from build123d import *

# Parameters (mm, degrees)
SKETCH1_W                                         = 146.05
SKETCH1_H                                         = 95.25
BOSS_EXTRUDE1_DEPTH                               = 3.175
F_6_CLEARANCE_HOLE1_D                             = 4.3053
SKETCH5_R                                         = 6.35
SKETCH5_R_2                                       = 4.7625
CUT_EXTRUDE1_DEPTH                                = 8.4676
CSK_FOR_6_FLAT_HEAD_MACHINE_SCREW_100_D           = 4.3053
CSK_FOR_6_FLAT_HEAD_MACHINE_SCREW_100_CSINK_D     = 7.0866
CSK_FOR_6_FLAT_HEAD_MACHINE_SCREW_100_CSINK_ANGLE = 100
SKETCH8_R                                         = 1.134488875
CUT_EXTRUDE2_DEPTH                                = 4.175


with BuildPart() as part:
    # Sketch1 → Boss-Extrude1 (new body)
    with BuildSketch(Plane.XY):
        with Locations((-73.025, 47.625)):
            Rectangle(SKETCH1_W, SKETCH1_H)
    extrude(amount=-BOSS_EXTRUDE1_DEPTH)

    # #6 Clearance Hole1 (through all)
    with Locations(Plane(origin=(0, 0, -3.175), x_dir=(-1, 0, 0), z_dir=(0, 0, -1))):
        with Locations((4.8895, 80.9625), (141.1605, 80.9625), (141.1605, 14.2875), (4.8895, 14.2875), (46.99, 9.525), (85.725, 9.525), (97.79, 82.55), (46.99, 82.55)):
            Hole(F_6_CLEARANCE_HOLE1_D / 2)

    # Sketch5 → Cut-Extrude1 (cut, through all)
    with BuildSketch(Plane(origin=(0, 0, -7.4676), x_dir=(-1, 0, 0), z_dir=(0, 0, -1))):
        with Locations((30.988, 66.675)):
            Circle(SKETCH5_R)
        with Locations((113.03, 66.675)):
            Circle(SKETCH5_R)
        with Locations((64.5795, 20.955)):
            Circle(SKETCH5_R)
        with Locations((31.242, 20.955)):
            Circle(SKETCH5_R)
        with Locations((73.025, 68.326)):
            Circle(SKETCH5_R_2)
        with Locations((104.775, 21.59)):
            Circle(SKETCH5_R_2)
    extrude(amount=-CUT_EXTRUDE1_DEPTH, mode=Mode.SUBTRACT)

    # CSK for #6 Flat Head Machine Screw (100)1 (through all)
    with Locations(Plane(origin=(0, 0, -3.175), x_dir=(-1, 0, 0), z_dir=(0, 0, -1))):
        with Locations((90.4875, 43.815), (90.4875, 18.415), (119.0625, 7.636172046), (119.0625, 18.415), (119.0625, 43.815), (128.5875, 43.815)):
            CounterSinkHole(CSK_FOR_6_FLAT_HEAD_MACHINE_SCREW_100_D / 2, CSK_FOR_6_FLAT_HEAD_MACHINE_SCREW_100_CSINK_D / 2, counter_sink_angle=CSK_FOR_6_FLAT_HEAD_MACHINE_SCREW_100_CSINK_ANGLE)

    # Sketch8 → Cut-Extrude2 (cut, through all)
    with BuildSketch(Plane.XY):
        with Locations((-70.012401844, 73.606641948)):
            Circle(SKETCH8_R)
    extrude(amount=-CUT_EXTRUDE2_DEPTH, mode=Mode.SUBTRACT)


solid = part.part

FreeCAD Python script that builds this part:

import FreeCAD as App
import Part
import Sketcher
from FreeCAD import Vector
Q = App.Units.Quantity


def add_polygon(sketch, points):
    """Adds a closed chain of lines whose ends are joined by coincident constraints."""
    first, n = sketch.GeometryCount, len(points)
    for a, b in zip(points, points[1:] + points[:1]):
        sketch.addGeometry(Part.LineSegment(App.Vector(*a, 0), App.Vector(*b, 0)), False)
    for i in range(n):
        sketch.addConstraint(Sketcher.Constraint("Coincident", first + i, 2, first + (i + 1) % n, 1))

doc = App.newDocument("Part")
body = doc.addObject("PartDesign::Body", "Body")

sketch1 = body.newObject("Sketcher::SketchObject", "Sketch")
sketch1.AttachmentSupport = (doc.getObject("XY_Plane"), [""])
sketch1.MapMode = "FlatFace"
add_polygon(sketch1, [(-146, 95), (-146, 0), (0, 0), (0, 95)])
sketch1.addConstraint([
    Sketcher.Constraint("Vertical", 0),
    Sketcher.Constraint("Horizontal", 1),
    Sketcher.Constraint("Vertical", 2),
    Sketcher.Constraint("Horizontal", 3),
    Sketcher.Constraint("Coincident", 1, 2, -1, 1),
    Sketcher.Constraint("DistanceX", 1, 1, 1, 2, Q("5.75 in")),
    Sketcher.Constraint("DistanceY", 0, 2, 0, 1, Q("3.75 in")),
])
pad1 = body.newObject("PartDesign::Pad", "Pad")
pad1.Profile = sketch1
pad1.Length = Q("0.125 in")
pad1.Reversed = True

sketch2 = body.newObject("Sketcher::SketchObject", "Sketch001")
sketch2.AttachmentSupport = (doc.getObject("XY_Plane"), [""])
sketch2.MapMode = "FlatFace"
sketch2.AttachmentOffset = App.Placement(Vector(0, 0, -0.125 * 25.4), App.Rotation())
sketch2.addGeometry([
    Part.Circle(Vector(-4.9, 81, 0), Vector(0, 0, 1), 2.2),
    Part.Circle(Vector(-141.2, 81, 0), Vector(0, 0, 1), 2.2),
    Part.Circle(Vector(-141.2, 14.3, 0), Vector(0, 0, 1), 2.2),
    Part.Circle(Vector(-4.9, 14.3, 0), Vector(0, 0, 1), 2.2),
    Part.Circle(Vector(-47, 9.5, 0), Vector(0, 0, 1), 2.2),
    Part.Circle(Vector(-85.7, 9.5, 0), Vector(0, 0, 1), 2.2),
    Part.Circle(Vector(-97.8, 82.5, 0), Vector(0, 0, 1), 2.2),
    Part.Circle(Vector(-47, 82.5, 0), Vector(0, 0, 1), 2.2),
], False)
sketch2.addConstraint([
    Sketcher.Constraint("Equal", 0, 1),
    Sketcher.Constraint("Equal", 1, 2),
    Sketcher.Constraint("Equal", 2, 3),
    Sketcher.Constraint("Equal", 3, 4),
    Sketcher.Constraint("Equal", 4, 5),
    Sketcher.Constraint("Equal", 5, 6),
    Sketcher.Constraint("Equal", 6, 7),
    Sketcher.Constraint("Horizontal", 0, 3, 1, 3),
    Sketcher.Constraint("Horizontal", 2, 3, 3, 3),
    Sketcher.Constraint("Horizontal", 4, 3, 5, 3),
    Sketcher.Constraint("Horizontal", 6, 3, 7, 3),
    Sketcher.Constraint("Vertical", 1, 3, 2, 3),
    Sketcher.Constraint("Vertical", 0, 3, 3, 3),
    Sketcher.Constraint("Vertical", 4, 3, 7, 3),
    Sketcher.Constraint("DistanceX", 6, 3, 4, 3, Q("2 in")),
    Sketcher.Constraint("Diameter", 0, Q("0.1695 in")),
    Sketcher.Constraint("DistanceX", 4, 3, -1, 1, Q("1.85 in")),
    Sketcher.Constraint("DistanceY", -1, 1, 6, 3, Q("3.25 in")),
    Sketcher.Constraint("DistanceY", -1, 1, 0, 3, Q("3.1875 in")),
    Sketcher.Constraint("DistanceY", -1, 1, 2, 3, Q("0.5625 in")),
    Sketcher.Constraint("DistanceY", -1, 1, 4, 3, Q("0.375 in")),
    Sketcher.Constraint("DistanceX", 5, 3, -1, 1, Q("3.375 in")),
    Sketcher.Constraint("DistanceX", 1, 3, 0, 3, Q("5.365 in")),
    Sketcher.Constraint("DistanceX", 0, 3, -1, 1, Q("0.1925 in")),
])
doc.recompute()
hole = body.newObject("PartDesign::Hole", "Hole")
hole.Profile = sketch2
hole.ThreadType = "None"
hole.Diameter = Q("0.1695 in")
hole.DepthType = "ThroughAll"
hole.Reversed = True

sketch3 = body.newObject("Sketcher::SketchObject", "Sketch002")
sketch3.AttachmentSupport = (doc.getObject("XY_Plane"), [""])
sketch3.MapMode = "FlatFace"
sketch3.AttachmentOffset = App.Placement(Vector(0, 0, -0.294 * 25.4), App.Rotation())
sketch3.addGeometry([
    Part.Circle(Vector(-31, 66.7, 0), Vector(0, 0, 1), 6.3),
    Part.Circle(Vector(-113, 66.7, 0), Vector(0, 0, 1), 6.3),
    Part.Circle(Vector(-64.6, 21, 0), Vector(0, 0, 1), 6.3),
    Part.Circle(Vector(-31.2, 21, 0), Vector(0, 0, 1), 6.3),
    Part.Circle(Vector(-73, 68.3, 0), Vector(0, 0, 1), 4.8),
    Part.Circle(Vector(-104.8, 21.6, 0), Vector(0, 0, 1), 4.8),
], False)
sketch3.addConstraint([
    Sketcher.Constraint("Equal", 0, 1),
    Sketcher.Constraint("Equal", 1, 2),
    Sketcher.Constraint("Equal", 2, 3),
    Sketcher.Constraint("Equal", 4, 5),
    Sketcher.Constraint("Horizontal", 0, 3, 1, 3),
    Sketcher.Constraint("Horizontal", 2, 3, 3, 3),
    Sketcher.Constraint("Diameter", 0, Q("0.5 in")),
    Sketcher.Constraint("Diameter", 4, Q("0.375 in")),
    Sketcher.Constraint("DistanceY", 2, 3, 0, 3, Q("1.8 in")),
    Sketcher.Constraint("DistanceX", 0, 3, -1, 1, Q("1.22 in")),
    Sketcher.Constraint("DistanceX", 1, 3, -1, 1, Q("4.45 in")),
    Sketcher.Constraint("DistanceX", 3, 3, -1, 1, Q("1.23 in")),
    Sketcher.Constraint("DistanceY", -1, 1, 4, 3, Q("2.69 in")),
    Sketcher.Constraint("DistanceY", -1, 1, 5, 3, Q("0.85 in")),
    Sketcher.Constraint("DistanceX", 5, 3, 4, 3, Q("1.25 in")),
    Sketcher.Constraint("DistanceY", -1, 1, 0, 3, Q("2.625 in")),
    Sketcher.Constraint("DistanceX", 4, 3, -1, 1, Q("2.875 in")),
    Sketcher.Constraint("DistanceX", 2, 3, 3, 3, Q("1.3125 in")),
])
pocket1 = body.newObject("PartDesign::Pocket", "Pocket")
pocket1.Profile = sketch3
pocket1.Type = "ThroughAll"
pocket1.Reversed = True

sketch4 = body.newObject("Sketcher::SketchObject", "Sketch003")
sketch4.AttachmentSupport = (doc.getObject("XY_Plane"), [""])
sketch4.MapMode = "FlatFace"
sketch4.AttachmentOffset = App.Placement(Vector(0, 0, -0.125 * 25.4), App.Rotation())
sketch4.addGeometry([
    Part.Circle(Vector(-90.5, 43.8, 0), Vector(0, 0, 1), 2.2),
    Part.Circle(Vector(-90.5, 18.4, 0), Vector(0, 0, 1), 2.2),
    Part.Circle(Vector(-119.1, 7.6, 0), Vector(0, 0, 1), 2.2),
    Part.Circle(Vector(-119.1, 18.4, 0), Vector(0, 0, 1), 2.2),
    Part.Circle(Vector(-119.1, 43.8, 0), Vector(0, 0, 1), 2.2),
    Part.Circle(Vector(-128.6, 43.8, 0), Vector(0, 0, 1), 2.2),
], False)
sketch4.addConstraint([
    Sketcher.Constraint("Equal", 0, 1),
    Sketcher.Constraint("Equal", 1, 2),
    Sketcher.Constraint("Equal", 2, 3),
    Sketcher.Constraint("Equal", 3, 4),
    Sketcher.Constraint("Equal", 4, 5),
    Sketcher.Constraint("Horizontal", 1, 3, 3, 3),
    Sketcher.Constraint("Horizontal", 0, 3, 4, 3),
    Sketcher.Constraint("Horizontal", 4, 3, 5, 3),
    Sketcher.Constraint("Vertical", 0, 3, 1, 3),
    Sketcher.Constraint("Vertical", 2, 3, 3, 3),
    Sketcher.Constraint("Vertical", 3, 3, 4, 3),
    Sketcher.Constraint("DistanceY", 1, 3, 0, 3, Q("1 in")),
    Sketcher.Constraint("Diameter", 0, Q("0.1695 in")),
    Sketcher.Constraint("DistanceX", 5, 3, 0, 3, Q("1.5 in")),
    Sketcher.Constraint("DistanceX", 0, 3, -1, 1, Q("3.5625 in")),
    Sketcher.Constraint("DistanceY", -1, 1, 0, 3, Q("1.725 in")),
    Sketcher.Constraint("DistanceX", 2, 3, -1, 1, Q("4.6875 in")),
    Sketcher.Constraint("DistanceY", -1, 1, 2, 3, 7.636172),
])
doc.recompute()
hole2 = body.newObject("PartDesign::Hole", "Hole001")
hole2.Profile = sketch4
hole2.ThreadType = "None"
hole2.Diameter = Q("0.1695 in")
hole2.DepthType = "ThroughAll"
hole2.HoleCutType = "Countersink"
hole2.HoleCutDiameter = Q("0.279 in")
hole2.HoleCutCountersinkAngle = 100
hole2.Reversed = True

sketch5 = body.newObject("Sketcher::SketchObject", "Sketch004")
sketch5.AttachmentSupport = (doc.getObject("XY_Plane"), [""])
sketch5.MapMode = "FlatFace"
sketch5.addGeometry(Part.Circle(Vector(-70, 73.6, 0), Vector(0, 0, 1), 1.1), False)
sketch5.addConstraint([
    Sketcher.Constraint("Diameter", 0, 2.268978),
    Sketcher.Constraint("DistanceX", 0, 3, -1, 1, 70.012402),
    Sketcher.Constraint("DistanceY", -1, 1, 0, 3, 73.606642),
])
pocket2 = body.newObject("PartDesign::Pocket", "Pocket001")
pocket2.Profile = sketch5
pocket2.Type = "ThroughAll"

doc.recompute()
